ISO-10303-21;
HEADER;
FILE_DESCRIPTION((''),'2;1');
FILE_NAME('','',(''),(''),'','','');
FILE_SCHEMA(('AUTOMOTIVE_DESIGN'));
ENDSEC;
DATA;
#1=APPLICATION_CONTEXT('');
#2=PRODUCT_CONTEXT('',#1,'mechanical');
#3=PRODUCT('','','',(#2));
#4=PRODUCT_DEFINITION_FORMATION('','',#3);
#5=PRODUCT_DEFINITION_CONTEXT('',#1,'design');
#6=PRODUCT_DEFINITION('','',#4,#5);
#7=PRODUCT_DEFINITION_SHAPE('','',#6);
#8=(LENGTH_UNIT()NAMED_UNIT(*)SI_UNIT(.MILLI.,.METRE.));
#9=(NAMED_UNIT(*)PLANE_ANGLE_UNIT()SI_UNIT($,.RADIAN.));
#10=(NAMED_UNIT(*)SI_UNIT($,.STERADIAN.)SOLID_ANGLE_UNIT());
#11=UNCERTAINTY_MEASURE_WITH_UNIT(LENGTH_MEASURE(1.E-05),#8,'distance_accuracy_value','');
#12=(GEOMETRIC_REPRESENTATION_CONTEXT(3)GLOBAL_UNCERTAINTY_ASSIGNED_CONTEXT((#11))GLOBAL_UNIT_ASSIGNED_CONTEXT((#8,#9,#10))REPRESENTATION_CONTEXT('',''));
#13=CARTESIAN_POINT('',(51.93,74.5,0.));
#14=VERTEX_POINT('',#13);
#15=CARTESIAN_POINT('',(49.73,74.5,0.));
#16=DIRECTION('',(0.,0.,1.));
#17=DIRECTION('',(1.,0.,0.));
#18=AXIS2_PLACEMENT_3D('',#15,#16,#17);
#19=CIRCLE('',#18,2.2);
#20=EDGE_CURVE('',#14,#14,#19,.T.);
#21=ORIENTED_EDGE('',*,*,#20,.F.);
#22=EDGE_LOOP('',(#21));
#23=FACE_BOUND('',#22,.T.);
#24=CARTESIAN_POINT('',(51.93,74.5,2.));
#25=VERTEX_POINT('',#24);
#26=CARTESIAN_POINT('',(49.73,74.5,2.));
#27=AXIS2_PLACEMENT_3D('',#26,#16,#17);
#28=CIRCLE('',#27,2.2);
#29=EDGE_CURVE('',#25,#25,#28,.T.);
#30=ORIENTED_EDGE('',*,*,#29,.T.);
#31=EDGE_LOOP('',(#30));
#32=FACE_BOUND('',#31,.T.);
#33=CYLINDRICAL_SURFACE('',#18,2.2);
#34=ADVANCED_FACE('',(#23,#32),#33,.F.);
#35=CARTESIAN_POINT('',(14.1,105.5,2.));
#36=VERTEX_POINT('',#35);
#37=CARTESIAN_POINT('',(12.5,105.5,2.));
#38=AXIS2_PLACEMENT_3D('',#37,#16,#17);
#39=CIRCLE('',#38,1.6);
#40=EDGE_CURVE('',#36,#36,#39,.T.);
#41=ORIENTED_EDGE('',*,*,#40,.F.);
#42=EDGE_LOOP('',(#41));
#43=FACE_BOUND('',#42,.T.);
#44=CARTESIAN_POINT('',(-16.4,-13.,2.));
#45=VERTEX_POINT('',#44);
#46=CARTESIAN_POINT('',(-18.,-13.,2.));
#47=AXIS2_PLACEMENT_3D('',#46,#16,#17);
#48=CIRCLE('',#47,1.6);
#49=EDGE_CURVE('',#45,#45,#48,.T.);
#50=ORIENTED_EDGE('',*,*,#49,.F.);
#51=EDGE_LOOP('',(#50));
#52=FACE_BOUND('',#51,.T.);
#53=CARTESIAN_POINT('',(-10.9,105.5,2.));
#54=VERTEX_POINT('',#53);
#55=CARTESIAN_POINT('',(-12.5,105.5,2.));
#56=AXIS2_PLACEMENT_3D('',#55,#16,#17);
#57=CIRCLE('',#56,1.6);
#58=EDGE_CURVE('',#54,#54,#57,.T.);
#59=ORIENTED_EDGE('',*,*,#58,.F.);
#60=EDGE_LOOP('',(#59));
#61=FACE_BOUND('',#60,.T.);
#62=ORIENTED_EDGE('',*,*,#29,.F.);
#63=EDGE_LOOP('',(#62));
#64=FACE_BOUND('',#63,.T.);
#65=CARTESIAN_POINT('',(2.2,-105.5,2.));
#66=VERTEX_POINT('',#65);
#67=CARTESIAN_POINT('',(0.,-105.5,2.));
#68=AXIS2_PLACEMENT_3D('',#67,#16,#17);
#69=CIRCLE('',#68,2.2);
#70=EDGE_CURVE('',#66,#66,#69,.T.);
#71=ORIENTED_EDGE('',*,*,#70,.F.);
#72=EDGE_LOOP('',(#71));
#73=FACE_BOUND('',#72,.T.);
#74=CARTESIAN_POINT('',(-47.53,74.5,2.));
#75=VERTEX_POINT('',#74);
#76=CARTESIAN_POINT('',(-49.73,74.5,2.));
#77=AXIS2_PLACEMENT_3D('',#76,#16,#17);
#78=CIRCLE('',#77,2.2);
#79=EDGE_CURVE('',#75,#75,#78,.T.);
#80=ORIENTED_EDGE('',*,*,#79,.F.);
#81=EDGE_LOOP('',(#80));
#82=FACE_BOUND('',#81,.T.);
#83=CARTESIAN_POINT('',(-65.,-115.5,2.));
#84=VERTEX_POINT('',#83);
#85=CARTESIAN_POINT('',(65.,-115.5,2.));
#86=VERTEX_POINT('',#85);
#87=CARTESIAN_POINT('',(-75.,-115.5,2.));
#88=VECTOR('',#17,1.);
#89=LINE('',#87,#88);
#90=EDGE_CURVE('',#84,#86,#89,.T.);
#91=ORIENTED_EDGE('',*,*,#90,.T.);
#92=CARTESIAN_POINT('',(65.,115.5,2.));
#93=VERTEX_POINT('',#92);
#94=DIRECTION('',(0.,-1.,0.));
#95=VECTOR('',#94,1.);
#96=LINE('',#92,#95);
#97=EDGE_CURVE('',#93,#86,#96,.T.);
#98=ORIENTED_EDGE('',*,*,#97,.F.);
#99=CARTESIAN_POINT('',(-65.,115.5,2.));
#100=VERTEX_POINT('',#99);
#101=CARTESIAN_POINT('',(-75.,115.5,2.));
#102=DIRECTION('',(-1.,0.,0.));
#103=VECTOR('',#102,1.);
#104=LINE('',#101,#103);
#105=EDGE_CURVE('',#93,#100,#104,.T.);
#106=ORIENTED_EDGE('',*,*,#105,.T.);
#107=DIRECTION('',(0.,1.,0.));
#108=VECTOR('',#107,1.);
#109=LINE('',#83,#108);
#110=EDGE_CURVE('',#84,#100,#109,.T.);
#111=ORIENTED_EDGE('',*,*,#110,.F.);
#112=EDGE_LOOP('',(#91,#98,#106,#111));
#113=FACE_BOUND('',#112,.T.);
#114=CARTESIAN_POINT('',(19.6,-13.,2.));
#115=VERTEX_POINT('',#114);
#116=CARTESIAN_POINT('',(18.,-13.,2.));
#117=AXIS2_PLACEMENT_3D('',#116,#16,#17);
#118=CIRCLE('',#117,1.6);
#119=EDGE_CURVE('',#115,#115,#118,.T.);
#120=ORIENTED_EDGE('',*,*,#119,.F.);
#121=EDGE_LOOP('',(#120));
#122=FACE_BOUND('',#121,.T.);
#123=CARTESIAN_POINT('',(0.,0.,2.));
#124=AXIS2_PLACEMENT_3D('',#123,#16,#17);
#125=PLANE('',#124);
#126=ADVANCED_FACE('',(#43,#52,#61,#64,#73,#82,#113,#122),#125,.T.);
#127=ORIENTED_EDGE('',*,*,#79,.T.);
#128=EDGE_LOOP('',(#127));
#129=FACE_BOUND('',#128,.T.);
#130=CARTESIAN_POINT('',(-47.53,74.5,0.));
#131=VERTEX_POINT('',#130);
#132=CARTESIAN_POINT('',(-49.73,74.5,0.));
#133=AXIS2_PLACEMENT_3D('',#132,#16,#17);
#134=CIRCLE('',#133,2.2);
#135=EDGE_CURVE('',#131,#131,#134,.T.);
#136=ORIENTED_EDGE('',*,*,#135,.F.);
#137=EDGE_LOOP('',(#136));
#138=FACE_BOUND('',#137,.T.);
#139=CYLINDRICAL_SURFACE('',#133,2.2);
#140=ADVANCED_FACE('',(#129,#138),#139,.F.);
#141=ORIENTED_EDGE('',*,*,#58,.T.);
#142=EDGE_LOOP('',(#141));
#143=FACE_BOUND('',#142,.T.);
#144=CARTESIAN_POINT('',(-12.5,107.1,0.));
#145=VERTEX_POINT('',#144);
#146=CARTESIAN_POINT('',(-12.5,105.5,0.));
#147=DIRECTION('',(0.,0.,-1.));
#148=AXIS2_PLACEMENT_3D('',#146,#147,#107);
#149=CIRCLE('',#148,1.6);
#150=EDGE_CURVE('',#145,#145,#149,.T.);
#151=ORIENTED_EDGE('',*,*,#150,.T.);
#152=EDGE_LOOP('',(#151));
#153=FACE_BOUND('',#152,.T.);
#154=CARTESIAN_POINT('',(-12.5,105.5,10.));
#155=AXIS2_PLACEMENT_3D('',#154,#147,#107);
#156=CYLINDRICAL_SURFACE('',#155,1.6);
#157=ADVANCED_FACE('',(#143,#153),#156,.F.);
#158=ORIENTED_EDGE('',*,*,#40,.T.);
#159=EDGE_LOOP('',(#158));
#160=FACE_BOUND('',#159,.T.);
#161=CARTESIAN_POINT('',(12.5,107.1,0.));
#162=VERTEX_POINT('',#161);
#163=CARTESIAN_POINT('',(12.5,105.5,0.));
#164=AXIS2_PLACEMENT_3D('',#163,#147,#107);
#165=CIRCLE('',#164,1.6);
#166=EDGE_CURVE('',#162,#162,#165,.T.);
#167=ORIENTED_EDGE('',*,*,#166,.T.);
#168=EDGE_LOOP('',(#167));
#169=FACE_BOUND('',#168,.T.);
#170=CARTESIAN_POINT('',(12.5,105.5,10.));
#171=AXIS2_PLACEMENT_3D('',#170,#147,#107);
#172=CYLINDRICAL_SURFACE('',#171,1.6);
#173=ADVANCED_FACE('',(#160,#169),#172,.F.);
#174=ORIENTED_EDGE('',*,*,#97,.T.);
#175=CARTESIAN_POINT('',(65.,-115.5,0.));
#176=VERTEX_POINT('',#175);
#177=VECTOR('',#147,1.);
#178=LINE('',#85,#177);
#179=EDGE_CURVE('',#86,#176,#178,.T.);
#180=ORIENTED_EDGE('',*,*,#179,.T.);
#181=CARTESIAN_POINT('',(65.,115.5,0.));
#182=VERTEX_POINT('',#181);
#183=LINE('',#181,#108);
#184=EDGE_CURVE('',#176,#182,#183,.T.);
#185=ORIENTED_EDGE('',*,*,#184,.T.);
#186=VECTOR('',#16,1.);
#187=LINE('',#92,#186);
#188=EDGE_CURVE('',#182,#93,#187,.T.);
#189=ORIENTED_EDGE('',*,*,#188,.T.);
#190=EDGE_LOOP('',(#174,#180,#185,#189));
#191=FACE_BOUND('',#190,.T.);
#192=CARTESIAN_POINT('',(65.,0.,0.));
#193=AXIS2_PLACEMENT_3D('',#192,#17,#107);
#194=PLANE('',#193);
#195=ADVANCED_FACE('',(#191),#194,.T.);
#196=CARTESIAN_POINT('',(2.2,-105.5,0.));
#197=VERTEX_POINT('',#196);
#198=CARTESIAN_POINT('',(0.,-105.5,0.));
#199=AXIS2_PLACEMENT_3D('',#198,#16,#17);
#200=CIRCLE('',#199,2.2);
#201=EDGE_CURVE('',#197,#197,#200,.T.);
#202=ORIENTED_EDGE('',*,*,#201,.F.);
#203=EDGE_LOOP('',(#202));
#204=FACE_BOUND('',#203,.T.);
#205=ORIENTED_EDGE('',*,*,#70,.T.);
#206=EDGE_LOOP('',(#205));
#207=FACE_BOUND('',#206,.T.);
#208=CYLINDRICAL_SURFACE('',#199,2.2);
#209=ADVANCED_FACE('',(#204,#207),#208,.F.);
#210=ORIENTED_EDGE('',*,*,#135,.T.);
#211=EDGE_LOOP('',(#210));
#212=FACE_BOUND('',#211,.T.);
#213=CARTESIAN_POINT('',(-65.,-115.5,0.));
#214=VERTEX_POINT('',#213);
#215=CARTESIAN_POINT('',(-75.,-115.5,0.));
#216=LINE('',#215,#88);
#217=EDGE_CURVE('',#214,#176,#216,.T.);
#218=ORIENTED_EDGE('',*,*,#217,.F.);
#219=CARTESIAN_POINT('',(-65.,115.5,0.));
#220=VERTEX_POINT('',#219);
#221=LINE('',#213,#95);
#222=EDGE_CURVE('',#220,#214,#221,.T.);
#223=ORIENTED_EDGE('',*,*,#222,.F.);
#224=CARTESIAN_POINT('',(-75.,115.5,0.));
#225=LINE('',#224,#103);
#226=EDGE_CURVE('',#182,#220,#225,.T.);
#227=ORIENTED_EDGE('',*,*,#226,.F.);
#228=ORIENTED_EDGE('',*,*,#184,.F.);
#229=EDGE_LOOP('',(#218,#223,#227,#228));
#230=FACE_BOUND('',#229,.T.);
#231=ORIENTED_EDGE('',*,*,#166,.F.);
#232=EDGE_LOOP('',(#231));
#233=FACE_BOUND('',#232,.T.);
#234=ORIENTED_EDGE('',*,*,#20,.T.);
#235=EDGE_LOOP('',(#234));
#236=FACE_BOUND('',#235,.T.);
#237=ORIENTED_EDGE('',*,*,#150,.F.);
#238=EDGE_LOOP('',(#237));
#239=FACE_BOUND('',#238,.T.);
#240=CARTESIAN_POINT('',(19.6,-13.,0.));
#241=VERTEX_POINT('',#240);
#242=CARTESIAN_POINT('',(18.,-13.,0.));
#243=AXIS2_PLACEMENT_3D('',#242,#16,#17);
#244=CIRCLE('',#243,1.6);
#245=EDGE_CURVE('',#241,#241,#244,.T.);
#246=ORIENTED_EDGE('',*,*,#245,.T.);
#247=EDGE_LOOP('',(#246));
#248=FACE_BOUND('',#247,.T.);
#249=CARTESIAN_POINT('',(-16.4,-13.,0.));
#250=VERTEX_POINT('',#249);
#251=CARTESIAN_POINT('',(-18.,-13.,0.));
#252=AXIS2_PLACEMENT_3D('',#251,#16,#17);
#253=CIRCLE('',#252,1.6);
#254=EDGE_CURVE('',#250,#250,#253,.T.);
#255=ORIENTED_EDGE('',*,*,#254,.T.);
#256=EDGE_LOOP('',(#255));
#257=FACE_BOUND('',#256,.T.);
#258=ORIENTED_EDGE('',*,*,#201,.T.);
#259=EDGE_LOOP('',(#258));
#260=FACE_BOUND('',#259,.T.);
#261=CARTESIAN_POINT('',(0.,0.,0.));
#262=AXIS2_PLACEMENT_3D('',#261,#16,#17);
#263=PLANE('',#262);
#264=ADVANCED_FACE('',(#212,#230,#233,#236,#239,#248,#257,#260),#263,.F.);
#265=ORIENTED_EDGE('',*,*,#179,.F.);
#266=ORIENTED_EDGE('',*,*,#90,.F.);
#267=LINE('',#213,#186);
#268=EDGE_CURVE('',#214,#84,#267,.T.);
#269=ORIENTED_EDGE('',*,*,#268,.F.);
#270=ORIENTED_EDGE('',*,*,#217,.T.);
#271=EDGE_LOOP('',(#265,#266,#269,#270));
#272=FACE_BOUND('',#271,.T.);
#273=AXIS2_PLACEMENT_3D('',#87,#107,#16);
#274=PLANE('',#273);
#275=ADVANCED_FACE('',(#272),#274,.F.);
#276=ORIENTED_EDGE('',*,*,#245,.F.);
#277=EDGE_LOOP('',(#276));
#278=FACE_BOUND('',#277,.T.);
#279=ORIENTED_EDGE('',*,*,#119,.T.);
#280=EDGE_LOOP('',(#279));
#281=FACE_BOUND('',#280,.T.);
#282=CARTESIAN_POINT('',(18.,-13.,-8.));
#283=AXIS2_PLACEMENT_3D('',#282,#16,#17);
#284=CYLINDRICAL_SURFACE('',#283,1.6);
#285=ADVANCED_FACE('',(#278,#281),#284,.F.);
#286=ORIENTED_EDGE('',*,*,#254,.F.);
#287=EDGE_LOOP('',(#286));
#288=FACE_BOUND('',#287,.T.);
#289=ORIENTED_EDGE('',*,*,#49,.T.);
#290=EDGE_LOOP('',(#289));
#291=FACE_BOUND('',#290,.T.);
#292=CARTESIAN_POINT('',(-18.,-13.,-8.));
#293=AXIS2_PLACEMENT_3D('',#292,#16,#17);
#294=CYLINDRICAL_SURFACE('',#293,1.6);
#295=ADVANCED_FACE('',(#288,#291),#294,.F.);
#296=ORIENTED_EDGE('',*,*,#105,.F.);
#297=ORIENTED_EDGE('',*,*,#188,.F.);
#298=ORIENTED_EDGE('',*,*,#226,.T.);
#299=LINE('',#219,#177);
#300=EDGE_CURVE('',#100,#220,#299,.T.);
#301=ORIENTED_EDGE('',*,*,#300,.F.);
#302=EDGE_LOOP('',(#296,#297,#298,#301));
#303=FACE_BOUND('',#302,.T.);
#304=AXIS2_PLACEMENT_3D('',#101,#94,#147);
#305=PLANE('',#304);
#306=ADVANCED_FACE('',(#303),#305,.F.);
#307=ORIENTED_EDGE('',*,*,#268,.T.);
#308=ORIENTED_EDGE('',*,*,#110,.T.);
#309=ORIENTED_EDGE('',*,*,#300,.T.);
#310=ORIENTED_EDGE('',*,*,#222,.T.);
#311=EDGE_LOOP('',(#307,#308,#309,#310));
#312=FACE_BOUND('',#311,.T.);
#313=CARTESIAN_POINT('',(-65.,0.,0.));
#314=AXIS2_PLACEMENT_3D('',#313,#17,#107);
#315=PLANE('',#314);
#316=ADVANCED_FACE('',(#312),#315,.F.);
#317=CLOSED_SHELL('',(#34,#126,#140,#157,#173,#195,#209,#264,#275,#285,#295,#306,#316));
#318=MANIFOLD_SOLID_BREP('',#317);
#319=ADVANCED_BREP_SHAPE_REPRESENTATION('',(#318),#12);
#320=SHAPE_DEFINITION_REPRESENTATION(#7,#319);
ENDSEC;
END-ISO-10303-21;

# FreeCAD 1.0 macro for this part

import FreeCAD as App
import Part
import Sketcher
Q = App.Units.Quantity

doc = App.newDocument("Part")
body = doc.addObject("PartDesign::Body", "Body")

sketch1 = body.newObject("Sketcher::SketchObject", "Sketch")
sketch1.AttachmentSupport = (doc.getObject("XY_Plane"), [""])
sketch1.MapMode = "FlatFace"
sketch1.addGeometry([
    Part.LineSegment(App.Vector(-75, 116, 0), App.Vector(-75, -116, 0)),
    Part.LineSegment(App.Vector(-75, -116, 0), App.Vector(75, -116, 0)),
    Part.LineSegment(App.Vector(75, -116, 0), App.Vector(75, 116, 0)),
    Part.LineSegment(App.Vector(75, 116, 0), App.Vector(-75, 116, 0)),
], False)
sketch1.addConstraint([
    Sketcher.Constraint("Coincident", 0, 2, 1, 1),
    Sketcher.Constraint("Coincident", 1, 2, 2, 1),
    Sketcher.Constraint("Coincident", 2, 2, 3, 1),
    Sketcher.Constraint("Coincident", 3, 2, 0, 1),
    Sketcher.Constraint("Vertical", 0),
    Sketcher.Constraint("Horizontal", 1),
    Sketcher.Constraint("Vertical", 2),
    Sketcher.Constraint("Horizontal", 3),
    Sketcher.Constraint("Symmetric", 0, 2, 2, 2, -1, 1),
    Sketcher.Constraint("DistanceX", 1, 1, 1, 2, Q("150 mm")),
    Sketcher.Constraint("DistanceY", 0, 2, 0, 1, Q("231 mm")),
])
pad1 = body.newObject("PartDesign::Pad", "Pad")
pad1.Profile = sketch1
pad1.Length = 2

sketch2 = body.newObject("Sketcher::SketchObject", "Sketch001")
sketch2.AttachmentSupport = (doc.getObject("XY_Plane"), [""])
sketch2.MapMode = "FlatFace"
sketch2.AttachmentOffset = App.Placement(App.Vector(0, 0, 2), App.Rotation())
sketch2.addGeometry([
    Part.Circle(App.Vector(49.7, 74.5, 0), App.Vector(0, 0, 1), 2.2),
    Part.Circle(App.Vector(-49.7, 74.5, 0), App.Vector(0, 0, 1), 2.2),
    Part.Circle(App.Vector(0, -105.5, 0), App.Vector(0, 0, 1), 2.2),
], False)
sketch2.addConstraint([
    Sketcher.Constraint("Equal", 0, 1),
    Sketcher.Constraint("Equal", 1, 2),
    Sketcher.Constraint("Symmetric", 0, 3, 1, 3, -2),
    Sketcher.Constraint("PointOnObject", 2, 3, -2),
    Sketcher.Constraint("Diameter", 0, Q("4.4 mm")),
    Sketcher.Constraint("DistanceY", 2, 3, 0, 3, Q("180 mm")),
    Sketcher.Constraint("DistanceY", -1, 1, 0, 3, Q("74.5 mm")),
    Sketcher.Constraint("DistanceX", -1, 1, 0, 3, Q("49.73 mm")),
])
pocket1 = body.newObject("PartDesign::Pocket", "Pocket")
pocket1.Profile = sketch2
pocket1.Length = 2

sketch3 = body.newObject("Sketcher::SketchObject", "Sketch002")
sketch3.AttachmentSupport = (doc.getObject("XY_Plane"), [""])
sketch3.MapMode = "FlatFace"
sketch3.AttachmentOffset = App.Placement(App.Vector(0, 0, 2), App.Rotation())
sketch3.addGeometry([
    Part.Circle(App.Vector(-18, -13, 0), App.Vector(0, 0, 1), 1.6),
    Part.Circle(App.Vector(18, -13, 0), App.Vector(0, 0, 1), 1.6),
], False)
sketch3.addConstraint([
    Sketcher.Constraint("Equal", 0, 1),
    Sketcher.Constraint("Symmetric", 0, 3, 1, 3, -2),
    Sketcher.Constraint("Diameter", 0, Q("3.2 mm")),
    Sketcher.Constraint("DistanceX", 0, 3, -1, 1, Q("18 mm")),
    Sketcher.Constraint("DistanceY", 0, 3, -1, 1, Q("13 mm")),
])
pocket2 = body.newObject("PartDesign::Pocket", "Pocket001")
pocket2.Profile = sketch3
pocket2.Length = 10

sketch4 = body.newObject("Sketcher::SketchObject", "Sketch003")
sketch4.AttachmentSupport = (doc.getObject("YZ_Plane"), [""])
sketch4.MapMode = "FlatFace"
sketch4.AttachmentOffset = App.Placement(App.Vector(0, 0, -75), App.Rotation())
sketch4.addGeometry([
    Part.LineSegment(App.Vector(115.5, 0, 0), App.Vector(-115.5, 0, 0)),
    Part.LineSegment(App.Vector(-115.5, 0, 0), App.Vector(-115.5, 2, 0)),
    Part.LineSegment(App.Vector(-115.5, 2, 0), App.Vector(115.5, 2, 0)),
    Part.LineSegment(App.Vector(115.5, 2, 0), App.Vector(115.5, 0, 0)),
], False)
sketch4.addConstraint([
    Sketcher.Constraint("Coincident", 0, 2, 1, 1),
    Sketcher.Constraint("Coincident", 1, 2, 2, 1),
    Sketcher.Constraint("Coincident", 2, 2, 3, 1),
    Sketcher.Constraint("Coincident", 3, 2, 0, 1),
    Sketcher.Constraint("Horizontal", 0),
    Sketcher.Constraint("Vertical", 1),
    Sketcher.Constraint("Horizontal", 2),
    Sketcher.Constraint("Vertical", 3),
    Sketcher.Constraint("Symmetric", 0, 2, 3, 2, -1, 1),
    Sketcher.Constraint("DistanceX", 0, 2, 0, 1, Q("231 mm")),
    Sketcher.Constraint("DistanceY", 1, 1, 1, 2, Q("2 mm")),
])
pocket3 = body.newObject("PartDesign::Pocket", "Pocket002")
pocket3.Profile = sketch4
pocket3.Length = 10
pocket3.Reversed = True

sketch5 = body.newObject("Sketcher::SketchObject", "Sketch004")
sketch5.AttachmentSupport = (doc.getObject("YZ_Plane"), [""])
sketch5.MapMode = "FlatFace"
sketch5.AttachmentOffset = App.Placement(App.Vector(0, 0, 75), App.Rotation())
sketch5.addGeometry([
    Part.LineSegment(App.Vector(115.5, 2, 0), App.Vector(-115.5, 2, 0)),
    Part.LineSegment(App.Vector(-115.5, 2, 0), App.Vector(-115.5, 0, 0)),
    Part.LineSegment(App.Vector(-115.5, 0, 0), App.Vector(115.5, 0, 0)),
    Part.LineSegment(App.Vector(115.5, 0, 0), App.Vector(115.5, 2, 0)),
], False)
sketch5.addConstraint([
    Sketcher.Constraint("Coincident", 0, 2, 1, 1),
    Sketcher.Constraint("Coincident", 1, 2, 2, 1),
    Sketcher.Constraint("Coincident", 2, 2, 3, 1),
    Sketcher.Constraint("Coincident", 3, 2, 0, 1),
    Sketcher.Constraint("Horizontal", 0),
    Sketcher.Constraint("Vertical", 1),
    Sketcher.Constraint("Horizontal", 2),
    Sketcher.Constraint("Vertical", 3),
    Sketcher.Constraint("Symmetric", 1, 2, 2, 2, -1, 1),
    Sketcher.Constraint("DistanceX", 0, 2, 0, 1, Q("231 mm")),
    Sketcher.Constraint("DistanceY", 1, 2, 1, 1, Q("2 mm")),
])
pocket4 = body.newObject("PartDesign::Pocket", "Pocket003")
pocket4.Profile = sketch5
pocket4.Length = 10

sketch6 = body.newObject("Sketcher::SketchObject", "Sketch005")
sketch6.AttachmentSupport = (doc.getObject("XY_Plane"), [""])
sketch6.MapMode = "FlatFace"
sketch6.addGeometry([
    Part.Circle(App.Vector(12.5, 105.5, 0), App.Vector(0, 0, 1), 1.6),
    Part.Circle(App.Vector(-12.5, 105.5, 0), App.Vector(0, 0, 1), 1.6),
], False)
sketch6.addConstraint([
    Sketcher.Constraint("Equal", 0, 1),
    Sketcher.Constraint("Symmetric", 0, 3, 1, 3, -2),
    Sketcher.Constraint("Diameter", 0, Q("3.2 mm")),
    Sketcher.Constraint("DistanceX", 1, 3, 0, 3, Q("25 mm")),
    Sketcher.Constraint("DistanceY", -1, 1, 0, 3, Q("105.5 mm")),
])
pocket5 = body.newObject("PartDesign::Pocket", "Pocket004")
pocket5.Profile = sketch6
pocket5.Length = 10
pocket5.Reversed = True

doc.recompute()
